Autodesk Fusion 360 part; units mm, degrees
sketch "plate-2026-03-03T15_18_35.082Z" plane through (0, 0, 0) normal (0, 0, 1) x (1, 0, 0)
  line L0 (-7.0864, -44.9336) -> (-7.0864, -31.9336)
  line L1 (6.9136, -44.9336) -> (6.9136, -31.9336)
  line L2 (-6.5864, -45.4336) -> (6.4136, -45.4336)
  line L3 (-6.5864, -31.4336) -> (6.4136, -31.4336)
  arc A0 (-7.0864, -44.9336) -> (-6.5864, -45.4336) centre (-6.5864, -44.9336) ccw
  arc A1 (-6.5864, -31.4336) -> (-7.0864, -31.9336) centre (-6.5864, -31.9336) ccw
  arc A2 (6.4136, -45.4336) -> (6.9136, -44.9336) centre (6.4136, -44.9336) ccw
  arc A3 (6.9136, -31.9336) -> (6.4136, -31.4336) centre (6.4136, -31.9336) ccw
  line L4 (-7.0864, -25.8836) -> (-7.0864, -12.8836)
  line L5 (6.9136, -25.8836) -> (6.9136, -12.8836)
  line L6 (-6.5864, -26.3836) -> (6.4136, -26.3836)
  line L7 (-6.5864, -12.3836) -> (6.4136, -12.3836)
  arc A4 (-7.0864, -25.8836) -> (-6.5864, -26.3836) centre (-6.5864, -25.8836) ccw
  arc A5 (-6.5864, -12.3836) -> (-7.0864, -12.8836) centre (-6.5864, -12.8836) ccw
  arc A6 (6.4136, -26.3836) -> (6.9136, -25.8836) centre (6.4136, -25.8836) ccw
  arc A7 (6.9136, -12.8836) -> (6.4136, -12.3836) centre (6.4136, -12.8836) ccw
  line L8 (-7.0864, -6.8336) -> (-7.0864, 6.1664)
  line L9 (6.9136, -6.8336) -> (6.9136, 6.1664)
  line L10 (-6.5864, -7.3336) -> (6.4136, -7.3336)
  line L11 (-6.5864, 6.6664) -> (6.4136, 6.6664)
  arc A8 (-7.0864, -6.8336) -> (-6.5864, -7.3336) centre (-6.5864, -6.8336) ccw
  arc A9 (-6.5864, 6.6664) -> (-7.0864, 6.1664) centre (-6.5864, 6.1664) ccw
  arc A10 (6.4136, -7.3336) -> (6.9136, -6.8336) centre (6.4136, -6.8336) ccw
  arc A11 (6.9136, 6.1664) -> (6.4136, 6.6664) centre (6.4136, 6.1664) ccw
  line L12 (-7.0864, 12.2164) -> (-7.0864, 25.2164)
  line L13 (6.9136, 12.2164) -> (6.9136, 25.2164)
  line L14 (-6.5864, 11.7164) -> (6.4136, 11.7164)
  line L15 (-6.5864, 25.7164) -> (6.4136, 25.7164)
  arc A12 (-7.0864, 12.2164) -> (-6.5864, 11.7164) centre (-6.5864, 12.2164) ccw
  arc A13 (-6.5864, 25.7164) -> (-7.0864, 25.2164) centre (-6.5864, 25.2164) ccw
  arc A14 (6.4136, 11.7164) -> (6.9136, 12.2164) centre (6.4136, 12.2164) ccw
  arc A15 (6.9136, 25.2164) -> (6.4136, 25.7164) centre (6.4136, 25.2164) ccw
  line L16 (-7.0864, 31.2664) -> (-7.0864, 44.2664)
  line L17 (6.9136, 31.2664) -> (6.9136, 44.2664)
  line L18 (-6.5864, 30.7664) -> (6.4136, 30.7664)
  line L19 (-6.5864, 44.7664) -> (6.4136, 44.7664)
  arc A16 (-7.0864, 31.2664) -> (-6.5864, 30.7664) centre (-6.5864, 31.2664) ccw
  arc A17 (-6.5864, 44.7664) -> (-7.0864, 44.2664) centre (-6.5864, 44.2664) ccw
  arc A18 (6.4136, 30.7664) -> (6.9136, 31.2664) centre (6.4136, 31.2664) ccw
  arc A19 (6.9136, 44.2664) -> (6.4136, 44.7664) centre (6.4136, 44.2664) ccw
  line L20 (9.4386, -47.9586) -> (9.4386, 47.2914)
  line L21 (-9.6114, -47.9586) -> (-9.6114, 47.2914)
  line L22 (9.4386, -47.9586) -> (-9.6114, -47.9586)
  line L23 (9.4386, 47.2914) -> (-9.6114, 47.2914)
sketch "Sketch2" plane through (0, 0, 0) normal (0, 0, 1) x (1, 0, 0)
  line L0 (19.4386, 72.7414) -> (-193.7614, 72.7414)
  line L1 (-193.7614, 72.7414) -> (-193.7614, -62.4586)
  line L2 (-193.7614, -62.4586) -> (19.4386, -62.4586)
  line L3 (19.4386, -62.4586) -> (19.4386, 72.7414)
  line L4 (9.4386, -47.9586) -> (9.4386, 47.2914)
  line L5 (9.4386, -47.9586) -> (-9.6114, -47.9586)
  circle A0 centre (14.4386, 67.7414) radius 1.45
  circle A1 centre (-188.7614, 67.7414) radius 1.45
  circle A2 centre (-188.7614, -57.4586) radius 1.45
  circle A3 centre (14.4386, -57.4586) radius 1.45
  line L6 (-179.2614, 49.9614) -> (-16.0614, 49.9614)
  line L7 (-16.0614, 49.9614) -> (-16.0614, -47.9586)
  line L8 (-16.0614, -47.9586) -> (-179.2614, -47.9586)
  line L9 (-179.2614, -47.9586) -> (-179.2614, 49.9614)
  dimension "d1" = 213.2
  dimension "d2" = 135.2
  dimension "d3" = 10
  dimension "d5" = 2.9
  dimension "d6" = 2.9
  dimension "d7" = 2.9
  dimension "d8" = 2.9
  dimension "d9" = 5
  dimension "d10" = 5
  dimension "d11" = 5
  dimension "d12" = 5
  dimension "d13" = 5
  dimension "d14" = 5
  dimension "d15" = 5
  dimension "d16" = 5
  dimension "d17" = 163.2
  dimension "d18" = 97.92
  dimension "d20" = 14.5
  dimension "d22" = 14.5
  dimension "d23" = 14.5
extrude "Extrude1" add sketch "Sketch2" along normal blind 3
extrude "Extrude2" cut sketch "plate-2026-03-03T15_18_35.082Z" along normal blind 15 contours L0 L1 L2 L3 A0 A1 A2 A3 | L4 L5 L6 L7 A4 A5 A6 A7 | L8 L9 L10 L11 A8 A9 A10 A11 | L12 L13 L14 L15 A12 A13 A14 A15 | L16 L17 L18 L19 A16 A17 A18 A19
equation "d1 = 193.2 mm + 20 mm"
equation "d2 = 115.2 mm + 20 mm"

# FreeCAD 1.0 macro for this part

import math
import FreeCAD as App
import Part
import Sketcher

V = App.Vector

doc = App.newDocument("Part")
body = doc.addObject("PartDesign::Body", "Body")

# Sketch on XY plane
sketch1 = body.newObject("Sketcher::SketchObject", "Sketch")
sketch1.AttachmentSupport = (doc.getObject("XY_Plane"), [""])
sketch1.MapMode = "FlatFace"
sketch1.addGeometry([
    Part.LineSegment(V(19.4, -62.5, 0), V(19.4, 72.7, 0)),  # 0
    Part.LineSegment(V(19.4, 72.7, 0), V(-193.8, 72.7, 0)),  # 1
    Part.LineSegment(V(-193.8, 72.7, 0), V(-193.8, -62.5, 0)),  # 2
    Part.LineSegment(V(-193.8, -62.5, 0), V(19.4, -62.5, 0)),  # 3
    Part.Circle(V(-188.8, -57.5, 0), V(0, 0, 1), 1.4),  # 4
    Part.LineSegment(V(-179.3, -48, 0), V(-179.3, 50, 0)),  # 5
    Part.LineSegment(V(-179.3, 50, 0), V(-16.1, 50, 0)),  # 6
    Part.LineSegment(V(-16.1, 50, 0), V(-16.1, -48, 0)),  # 7
    Part.LineSegment(V(-16.1, -48, 0), V(-179.3, -48, 0)),  # 8
    Part.Circle(V(14.4, -57.5, 0), V(0, 0, 1), 1.4),  # 9
    Part.Circle(V(-188.8, 67.7, 0), V(0, 0, 1), 1.4),  # 10
    Part.Circle(V(14.4, 67.7, 0), V(0, 0, 1), 1.4),  # 11
], False)
sketch1.addConstraint([
    Sketcher.Constraint("Coincident", 0, 2, 1, 1),
    Sketcher.Constraint("Coincident", 1, 2, 2, 1),
    Sketcher.Constraint("Coincident", 2, 2, 3, 1),
    Sketcher.Constraint("Coincident", 3, 2, 0, 1),
    Sketcher.Constraint("Coincident", 5, 2, 6, 1),
    Sketcher.Constraint("Coincident", 6, 2, 7, 1),
    Sketcher.Constraint("Coincident", 7, 2, 8, 1),
    Sketcher.Constraint("Coincident", 8, 2, 5, 1),
    Sketcher.Constraint("Vertical", 0),
    Sketcher.Constraint("Horizontal", 1),
    Sketcher.Constraint("Vertical", 2),
    Sketcher.Constraint("Horizontal", 3),
    Sketcher.Constraint("Vertical", 5),
    Sketcher.Constraint("Horizontal", 6),
    Sketcher.Constraint("Vertical", 7),
    Sketcher.Constraint("Horizontal", 8),
    Sketcher.Constraint("Equal", 4, 9),
    Sketcher.Constraint("Equal", 9, 10),
    Sketcher.Constraint("Equal", 10, 11),
    Sketcher.Constraint("Horizontal", 4, 3, 9, 3),
    Sketcher.Constraint("Horizontal", 10, 3, 11, 3),
    Sketcher.Constraint("Vertical", 4, 3, 10, 3),
    Sketcher.Constraint("Vertical", 9, 3, 11, 3),
    Sketcher.Constraint("Diameter", 4, 2.9),
    Sketcher.Constraint("DistanceX", 1, 2, 1, 1, 213.2),
    Sketcher.Constraint("DistanceX", 6, 1, 6, 2, 163.2),
    Sketcher.Constraint("DistanceY", 0, 1, 0, 2, 135.2),
    Sketcher.Constraint("DistanceX", 11, 3, 0, 2, 5.0),
    Sketcher.Constraint("DistanceY", 11, 3, 0, 2, 5.0),
    Sketcher.Constraint("DistanceX", 1, 2, 10, 3, 5.0),
    Sketcher.Constraint("DistanceY", 2, 2, 4, 3, 5.0),
    Sketcher.Constraint("DistanceY", 5, 1, 5, 2, 97.92),
    Sketcher.Constraint("DistanceX", 1, 2, 5, 2, 14.5),
    Sketcher.Constraint("DistanceY", 3, 2, 7, 2, 14.5),
    Sketcher.Constraint("DistanceX", 4, 3, -1, 1, 188.7614),
    Sketcher.Constraint("DistanceY", 4, 3, -1, 1, 57.4586),
])
pad1 = body.newObject("PartDesign::Pad", "Pad")
pad1.Profile = sketch1
pad1.Length = 3

# Sketch on XY plane
sketch2 = body.newObject("Sketcher::SketchObject", "Sketch001")
sketch2.AttachmentSupport = (doc.getObject("XY_Plane"), [""])
sketch2.MapMode = "FlatFace"
sketch2.addGeometry([
    Part.LineSegment(V(-7.1, -31.9, 0), V(-7.1, -44.9, 0)),  # 0
    Part.ArcOfCircle(Part.Circle(V(-6.6, -44.9, 0), V(0, 0, 1), 0.5), math.radians(180), math.radians(270)),  # 1
    Part.LineSegment(V(-6.6, -45.4, 0), V(6.4, -45.4, 0)),  # 2
    Part.ArcOfCircle(Part.Circle(V(6.4, -44.9, 0), V(0, 0, 1), 0.5), math.radians(-90), math.radians(0)),  # 3
    Part.LineSegment(V(6.9, -44.9, 0), V(6.9, -31.9, 0)),  # 4
    Part.ArcOfCircle(Part.Circle(V(6.4, -31.9, 0), V(0, 0, 1), 0.5), math.radians(0), math.radians(90)),  # 5
    Part.LineSegment(V(6.4, -31.4, 0), V(-6.6, -31.4, 0)),  # 6
    Part.ArcOfCircle(Part.Circle(V(-6.6, -31.9, 0), V(0, 0, 1), 0.5), math.radians(90), math.radians(180)),  # 7
    Part.LineSegment(V(-7.1, -12.9, 0), V(-7.1, -25.9, 0)),  # 8
    Part.ArcOfCircle(Part.Circle(V(-6.6, -25.9, 0), V(0, 0, 1), 0.5), math.radians(180), math.radians(270)),  # 9
    Part.LineSegment(V(-6.6, -26.4, 0), V(6.4, -26.4, 0)),  # 10
    Part.ArcOfCircle(Part.Circle(V(6.4, -25.9, 0), V(0, 0, 1), 0.5), math.radians(-90), math.radians(0)),  # 11
    Part.LineSegment(V(6.9, -25.9, 0), V(6.9, -12.9, 0)),  # 12
    Part.ArcOfCircle(Part.Circle(V(6.4, -12.9, 0), V(0, 0, 1), 0.5), math.radians(0), math.radians(90)),  # 13
    Part.LineSegment(V(6.4, -12.4, 0), V(-6.6, -12.4, 0)),  # 14
    Part.ArcOfCircle(Part.Circle(V(-6.6, -12.9, 0), V(0, 0, 1), 0.5), math.radians(90), math.radians(180)),  # 15
    Part.LineSegment(V(-7.1, 6.2, 0), V(-7.1, -6.8, 0)),  # 16
    Part.ArcOfCircle(Part.Circle(V(-6.6, -6.8, 0), V(0, 0, 1), 0.5), math.radians(180), math.radians(270)),  # 17
    Part.LineSegment(V(-6.6, -7.3, 0), V(6.4, -7.3, 0)),  # 18
    Part.ArcOfCircle(Part.Circle(V(6.4, -6.8, 0), V(0, 0, 1), 0.5), math.radians(-90), math.radians(0)),  # 19
    Part.LineSegment(V(6.9, -6.8, 0), V(6.9, 6.2, 0)),  # 20
    Part.ArcOfCircle(Part.Circle(V(6.4, 6.2, 0), V(0, 0, 1), 0.5), math.radians(0), math.radians(90)),  # 21
    Part.LineSegment(V(6.4, 6.7, 0), V(-6.6, 6.7, 0)),  # 22
    Part.ArcOfCircle(Part.Circle(V(-6.6, 6.2, 0), V(0, 0, 1), 0.5), math.radians(90), math.radians(180)),  # 23
    Part.LineSegment(V(-7.1, 25.2, 0), V(-7.1, 12.2, 0)),  # 24
    Part.ArcOfCircle(Part.Circle(V(-6.6, 12.2, 0), V(0, 0, 1), 0.5), math.radians(180), math.radians(270)),  # 25
    Part.LineSegment(V(-6.6, 11.7, 0), V(6.4, 11.7, 0)),  # 26
    Part.ArcOfCircle(Part.Circle(V(6.4, 12.2, 0), V(0, 0, 1), 0.5), math.radians(-90), math.radians(0)),  # 27
    Part.LineSegment(V(6.9, 12.2, 0), V(6.9, 25.2, 0)),  # 28
    Part.ArcOfCircle(Part.Circle(V(6.4, 25.2, 0), V(0, 0, 1), 0.5), math.radians(0), math.radians(90)),  # 29
    Part.LineSegment(V(6.4, 25.7, 0), V(-6.6, 25.7, 0)),  # 30
    Part.ArcOfCircle(Part.Circle(V(-6.6, 25.2, 0), V(0, 0, 1), 0.5), math.radians(90), math.radians(180)),  # 31
    Part.LineSegment(V(-7.1, 44.3, 0), V(-7.1, 31.3, 0)),  # 32
    Part.ArcOfCircle(Part.Circle(V(-6.6, 31.3, 0), V(0, 0, 1), 0.5), math.radians(180), math.radians(270)),  # 33
    Part.LineSegment(V(-6.6, 30.8, 0), V(6.4, 30.8, 0)),  # 34
    Part.ArcOfCircle(Part.Circle(V(6.4, 31.3, 0), V(0, 0, 1), 0.5), math.radians(-90), math.radians(0)),  # 35
    Part.LineSegment(V(6.9, 31.3, 0), V(6.9, 44.3, 0)),  # 36
    Part.ArcOfCircle(Part.Circle(V(6.4, 44.3, 0), V(0, 0, 1), 0.5), math.radians(0), math.radians(90)),  # 37
    Part.LineSegment(V(6.4, 44.8, 0), V(-6.6, 44.8, 0)),  # 38
    Part.ArcOfCircle(Part.Circle(V(-6.6, 44.3, 0), V(0, 0, 1), 0.5), math.radians(90), math.radians(180)),  # 39
], False)
sketch2.addConstraint([
    Sketcher.Constraint("Tangent", 0, 2, 1, 1),
    Sketcher.Constraint("Tangent", 1, 2, 2, 1),
    Sketcher.Constraint("Tangent", 2, 2, 3, 1),
    Sketcher.Constraint("Tangent", 3, 2, 4, 1),
    Sketcher.Constraint("Tangent", 4, 2, 5, 1),
    Sketcher.Constraint("Tangent", 5, 2, 6, 1),
    Sketcher.Constraint("Tangent", 6, 2, 7, 1),
    Sketcher.Constraint("Tangent", 7, 2, 0, 1),
    Sketcher.Constraint("Tangent", 8, 2, 9, 1),
    Sketcher.Constraint("Tangent", 9, 2, 10, 1),
    Sketcher.Constraint("Tangent", 10, 2, 11, 1),
    Sketcher.Constraint("Tangent", 11, 2, 12, 1),
    Sketcher.Constraint("Tangent", 12, 2, 13, 1),
    Sketcher.Constraint("Tangent", 13, 2, 14, 1),
    Sketcher.Constraint("Tangent", 14, 2, 15, 1),
    Sketcher.Constraint("Tangent", 15, 2, 8, 1),
    Sketcher.Constraint("Tangent", 16, 2, 17, 1),
    Sketcher.Constraint("Tangent", 17, 2, 18, 1),
    Sketcher.Constraint("Tangent", 18, 2, 19, 1),
    Sketcher.Constraint("Tangent", 19, 2, 20, 1),
    Sketcher.Constraint("Tangent", 20, 2, 21, 1),
    Sketcher.Constraint("Tangent", 21, 2, 22, 1),
    Sketcher.Constraint("Tangent", 22, 2, 23, 1),
    Sketcher.Constraint("Tangent", 23, 2, 16, 1),
    Sketcher.Constraint("Tangent", 24, 2, 25, 1),
    Sketcher.Constraint("Tangent", 25, 2, 26, 1),
    Sketcher.Constraint("Tangent", 26, 2, 27, 1),
    Sketcher.Constraint("Tangent", 27, 2, 28, 1),
    Sketcher.Constraint("Tangent", 28, 2, 29, 1),
    Sketcher.Constraint("Tangent", 29, 2, 30, 1),
    Sketcher.Constraint("Tangent", 30, 2, 31, 1),
    Sketcher.Constraint("Tangent", 31, 2, 24, 1),
    Sketcher.Constraint("Tangent", 32, 2, 33, 1),
    Sketcher.Constraint("Tangent", 33, 2, 34, 1),
    Sketcher.Constraint("Tangent", 34, 2, 35, 1),
    Sketcher.Constraint("Tangent", 35, 2, 36, 1),
    Sketcher.Constraint("Tangent", 36, 2, 37, 1),
    Sketcher.Constraint("Tangent", 37, 2, 38, 1),
    Sketcher.Constraint("Tangent", 38, 2, 39, 1),
    Sketcher.Constraint("Tangent", 39, 2, 32, 1),
    Sketcher.Constraint("Vertical", 0),
    Sketcher.Constraint("Horizontal", 2),
    Sketcher.Constraint("Vertical", 4),
    Sketcher.Constraint("Horizontal", 6),
    Sketcher.Constraint("Vertical", 8),
    Sketcher.Constraint("Horizontal", 10),
    Sketcher.Constraint("Vertical", 12),
    Sketcher.Constraint("Horizontal", 14),
    Sketcher.Constraint("Vertical", 16),
    Sketcher.Constraint("Horizontal", 18),
    Sketcher.Constraint("Vertical", 20),
    Sketcher.Constraint("Horizontal", 22),
    Sketcher.Constraint("Vertical", 24),
    Sketcher.Constraint("Horizontal", 26),
    Sketcher.Constraint("Vertical", 28),
    Sketcher.Constraint("Horizontal", 30),
    Sketcher.Constraint("Vertical", 32),
    Sketcher.Constraint("Horizontal", 34),
    Sketcher.Constraint("Vertical", 36),
    Sketcher.Constraint("Horizontal", 38),
    Sketcher.Constraint("Equal", 1, 3),
    Sketcher.Constraint("Equal", 3, 5),
    Sketcher.Constraint("Equal", 5, 7),
    Sketcher.Constraint("Equal", 7, 9),
    Sketcher.Constraint("Equal", 9, 11),
    Sketcher.Constraint("Equal", 11, 13),
    Sketcher.Constraint("Equal", 13, 15),
    Sketcher.Constraint("Equal", 15, 17),
    Sketcher.Constraint("Equal", 17, 19),
    Sketcher.Constraint("Equal", 19, 21),
    Sketcher.Constraint("Equal", 21, 23),
    Sketcher.Constraint("Equal", 23, 25),
    Sketcher.Constraint("Equal", 25, 27),
    Sketcher.Constraint("Equal", 27, 29),
    Sketcher.Constraint("Equal", 29, 31),
    Sketcher.Constraint("Equal", 31, 33),
    Sketcher.Constraint("Equal", 33, 35),
    Sketcher.Constraint("Equal", 35, 37),
    Sketcher.Constraint("Equal", 37, 39),
    Sketcher.Constraint("Vertical", 7, 3, 9, 3),
    Sketcher.Constraint("Vertical", 5, 3, 11, 3),
    Sketcher.Constraint("Vertical", 15, 3, 17, 3),
    Sketcher.Constraint("Vertical", 13, 3, 19, 3),
    Sketcher.Constraint("Vertical", 23, 3, 25, 3),
    Sketcher.Constraint("Vertical", 21, 3, 27, 3),
    Sketcher.Constraint("Vertical", 31, 3, 33, 3),
    Sketcher.Constraint("Vertical", 29, 3, 35, 3),
    Sketcher.Constraint("Equal", 38, 0),
    Sketcher.Constraint("Equal", 4, 8),
    Sketcher.Constraint("Equal", 12, 16),
    Sketcher.Constraint("Equal", 20, 24),
    Sketcher.Constraint("Equal", 28, 32),
    Sketcher.Constraint("Radius", 1, 0.5),
    Sketcher.Constraint("DistanceX", 2, 1, 2, 2, 13.0),
    Sketcher.Constraint("DistanceY", 7, 3, 17, 3, 25.1),
    Sketcher.Constraint("DistanceY", 15, 3, 25, 3, 25.1),
    Sketcher.Constraint("DistanceY", 23, 3, 33, 3, 25.1),
    Sketcher.Constraint("DistanceY", 7, 3, 9, 3, 6.05),
    Sketcher.Constraint("DistanceX", 1, 3, -1, 1, 6.5864),
    Sketcher.Constraint("DistanceY", 1, 3, -1, 1, 44.9336),
])
pocket1 = body.newObject("PartDesign::Pocket", "Pocket")
pocket1.Profile = sketch2
pocket1.Length = 15
pocket1.Reversed = True

doc.recompute()
